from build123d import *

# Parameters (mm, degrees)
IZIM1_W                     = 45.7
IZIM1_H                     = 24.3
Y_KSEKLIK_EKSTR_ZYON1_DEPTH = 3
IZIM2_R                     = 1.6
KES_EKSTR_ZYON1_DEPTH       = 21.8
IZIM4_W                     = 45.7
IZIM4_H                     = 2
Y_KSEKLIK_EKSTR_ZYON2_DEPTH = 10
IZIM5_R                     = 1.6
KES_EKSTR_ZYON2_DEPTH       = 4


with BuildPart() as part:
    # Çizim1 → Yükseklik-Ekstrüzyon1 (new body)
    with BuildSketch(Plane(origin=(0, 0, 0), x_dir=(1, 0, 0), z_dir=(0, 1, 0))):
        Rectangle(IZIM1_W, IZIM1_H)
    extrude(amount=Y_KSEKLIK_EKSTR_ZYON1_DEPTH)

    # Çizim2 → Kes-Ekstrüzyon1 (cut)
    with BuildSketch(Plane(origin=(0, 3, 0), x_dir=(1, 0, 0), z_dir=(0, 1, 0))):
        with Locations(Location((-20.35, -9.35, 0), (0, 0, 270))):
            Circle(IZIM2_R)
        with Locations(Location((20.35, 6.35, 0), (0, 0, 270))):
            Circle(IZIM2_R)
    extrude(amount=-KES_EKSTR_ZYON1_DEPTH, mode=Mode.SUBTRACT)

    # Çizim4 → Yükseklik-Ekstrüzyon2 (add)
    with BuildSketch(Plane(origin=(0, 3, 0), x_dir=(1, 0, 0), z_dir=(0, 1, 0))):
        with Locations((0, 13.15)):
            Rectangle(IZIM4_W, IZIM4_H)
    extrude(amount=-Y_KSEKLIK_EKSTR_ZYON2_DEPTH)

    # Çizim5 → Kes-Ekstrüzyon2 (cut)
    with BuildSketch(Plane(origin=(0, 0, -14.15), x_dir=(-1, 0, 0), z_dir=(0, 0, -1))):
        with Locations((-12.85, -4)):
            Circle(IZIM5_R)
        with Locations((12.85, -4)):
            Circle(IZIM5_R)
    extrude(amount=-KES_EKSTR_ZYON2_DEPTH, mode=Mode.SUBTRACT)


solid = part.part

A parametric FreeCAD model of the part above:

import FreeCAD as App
import Part
import Sketcher
from FreeCAD import Vector
Q = App.Units.Quantity

doc = App.newDocument("Part")
body = doc.addObject("PartDesign::Body", "Body")

# Sketch on XZ plane
sketch1 = doc.addObject("Sketcher::SketchObject", "Sketch")
body.addObject(sketch1)
sketch1.AttachmentSupport = (doc.XZ_Plane, [""])
sketch1.MapMode = "FlatFace"
sketch1.addGeometry([
    Part.LineSegment(Vector(-23, -12, 0), Vector(-23, 12, 0)),
    Part.LineSegment(Vector(-23, 12, 0), Vector(23, 12, 0)),
    Part.LineSegment(Vector(23, 12, 0), Vector(23, -12, 0)),
    Part.LineSegment(Vector(23, -12, 0), Vector(-23, -12, 0)),
], False)
sketch1.addConstraint([
    Sketcher.Constraint("Coincident", 0, 2, 1, 1),
    Sketcher.Constraint("Coincident", 1, 2, 2, 1),
    Sketcher.Constraint("Coincident", 2, 2, 3, 1),
    Sketcher.Constraint("Coincident", 3, 2, 0, 1),
    Sketcher.Constraint("Vertical", 0),
    Sketcher.Constraint("Horizontal", 1),
    Sketcher.Constraint("Vertical", 2),
    Sketcher.Constraint("Horizontal", 3),
    Sketcher.Constraint("Symmetric", 0, 2, 2, 2, -1, 1),
    Sketcher.Constraint("DistanceX", 1, 1, 1, 2, Q("45.7 mm")),
    Sketcher.Constraint("DistanceY", 0, 1, 0, 2, Q("24.3 mm")),
])
pad1 = doc.addObject("PartDesign::Pad", "Pad")
body.addObject(pad1)
pad1.Profile = sketch1
pad1.Length = 3
pad1.Reversed = True

# Sketch on XZ plane
sketch2 = doc.addObject("Sketcher::SketchObject", "Sketch001")
body.addObject(sketch2)
sketch2.AttachmentSupport = (doc.XZ_Plane, [""])
sketch2.MapMode = "FlatFace"
sketch2.AttachmentOffset = App.Placement(Vector(0, 0, -3), App.Rotation())
sketch2.addGeometry([
    Part.Circle(Vector(-20.4, 9.3, 0), Vector(0, 0, 1), 1.6),
    Part.Circle(Vector(20.4, -6.3, 0), Vector(0, 0, 1), 1.6),
], False)
sketch2.addConstraint([
    Sketcher.Constraint("Equal", 0, 1),
    Sketcher.Constraint("Diameter", 0, Q("3.2 mm")),
    Sketcher.Constraint("DistanceX", 0, 3, 1, 3, Q("40.7 mm")),
    Sketcher.Constraint("DistanceY", 1, 3, 0, 3, Q("15.7 mm")),
    Sketcher.Constraint("DistanceX", 0, 3, -1, 1, Q("20.35 mm")),
    Sketcher.Constraint("DistanceY", -1, 1, 0, 3, Q("9.35 mm")),
])
pocket1 = doc.addObject("PartDesign::Pocket", "Pocket")
body.addObject(pocket1)
pocket1.Profile = sketch2
pocket1.Length = 21.8
pocket1.Reversed = True

# Sketch on XZ plane
sketch3 = doc.addObject("Sketcher::SketchObject", "Sketch002")
body.addObject(sketch3)
sketch3.AttachmentSupport = (doc.XZ_Plane, [""])
sketch3.MapMode = "FlatFace"
sketch3.AttachmentOffset = App.Placement(Vector(0, 0, -3), App.Rotation())
sketch3.addGeometry([
    Part.LineSegment(Vector(-22.9, -14.2, 0), Vector(-22.9, -12.2, 0)),
    Part.LineSegment(Vector(-22.9, -12.2, 0), Vector(22.9, -12.2, 0)),
    Part.LineSegment(Vector(22.9, -12.2, 0), Vector(22.9, -14.2, 0)),
    Part.LineSegment(Vector(22.9, -14.2, 0), Vector(-22.9, -14.2, 0)),
], False)
sketch3.addConstraint([
    Sketcher.Constraint("Coincident", 0, 2, 1, 1),
    Sketcher.Constraint("Coincident", 1, 2, 2, 1),
    Sketcher.Constraint("Coincident", 2, 2, 3, 1),
    Sketcher.Constraint("Coincident", 3, 2, 0, 1),
    Sketcher.Constraint("Vertical", 0),
    Sketcher.Constraint("Horizontal", 1),
    Sketcher.Constraint("Vertical", 2),
    Sketcher.Constraint("Horizontal", 3),
    Sketcher.Constraint("DistanceY", 0, 1, 0, 2, Q("2 mm")),
    Sketcher.Constraint("DistanceX", 1, 1, 1, 2, Q("45.7 mm")),
    Sketcher.Constraint("DistanceX", 0, 2, -1, 1, Q("22.85 mm")),
    Sketcher.Constraint("DistanceY", 0, 2, -1, 1, Q("12.15 mm")),
])
pad2 = doc.addObject("PartDesign::Pad", "Pad001")
body.addObject(pad2)
pad2.Profile = sketch3
pad2.Length = 10

# Sketch on XY plane
sketch4 = doc.addObject("Sketcher::SketchObject", "Sketch003")
body.addObject(sketch4)
sketch4.AttachmentSupport = (doc.XY_Plane, [""])
sketch4.MapMode = "FlatFace"
sketch4.AttachmentOffset = App.Placement(Vector(0, 0, -14.15), App.Rotation())
sketch4.addGeometry([
    Part.Circle(Vector(12.8, -4, 0), Vector(0, 0, 1), 1.6),
    Part.Circle(Vector(-12.8, -4, 0), Vector(0, 0, 1), 1.6),
], False)
sketch4.addConstraint([
    Sketcher.Constraint("Equal", 0, 1),
    Sketcher.Constraint("Symmetric", 0, 3, 1, 3, -2),
    Sketcher.Constraint("Diameter", 0, Q("3.2 mm")),
    Sketcher.Constraint("DistanceY", 0, 3, -1, 1, Q("4 mm")),
    Sketcher.Constraint("DistanceX", 1, 3, 0, 3, Q("25.7 mm")),
])
pocket2 = doc.addObject("PartDesign::Pocket", "Pocket001")
body.addObject(pocket2)
pocket2.Profile = sketch4
pocket2.Length = 4
pocket2.Reversed = True

doc.recompute()
